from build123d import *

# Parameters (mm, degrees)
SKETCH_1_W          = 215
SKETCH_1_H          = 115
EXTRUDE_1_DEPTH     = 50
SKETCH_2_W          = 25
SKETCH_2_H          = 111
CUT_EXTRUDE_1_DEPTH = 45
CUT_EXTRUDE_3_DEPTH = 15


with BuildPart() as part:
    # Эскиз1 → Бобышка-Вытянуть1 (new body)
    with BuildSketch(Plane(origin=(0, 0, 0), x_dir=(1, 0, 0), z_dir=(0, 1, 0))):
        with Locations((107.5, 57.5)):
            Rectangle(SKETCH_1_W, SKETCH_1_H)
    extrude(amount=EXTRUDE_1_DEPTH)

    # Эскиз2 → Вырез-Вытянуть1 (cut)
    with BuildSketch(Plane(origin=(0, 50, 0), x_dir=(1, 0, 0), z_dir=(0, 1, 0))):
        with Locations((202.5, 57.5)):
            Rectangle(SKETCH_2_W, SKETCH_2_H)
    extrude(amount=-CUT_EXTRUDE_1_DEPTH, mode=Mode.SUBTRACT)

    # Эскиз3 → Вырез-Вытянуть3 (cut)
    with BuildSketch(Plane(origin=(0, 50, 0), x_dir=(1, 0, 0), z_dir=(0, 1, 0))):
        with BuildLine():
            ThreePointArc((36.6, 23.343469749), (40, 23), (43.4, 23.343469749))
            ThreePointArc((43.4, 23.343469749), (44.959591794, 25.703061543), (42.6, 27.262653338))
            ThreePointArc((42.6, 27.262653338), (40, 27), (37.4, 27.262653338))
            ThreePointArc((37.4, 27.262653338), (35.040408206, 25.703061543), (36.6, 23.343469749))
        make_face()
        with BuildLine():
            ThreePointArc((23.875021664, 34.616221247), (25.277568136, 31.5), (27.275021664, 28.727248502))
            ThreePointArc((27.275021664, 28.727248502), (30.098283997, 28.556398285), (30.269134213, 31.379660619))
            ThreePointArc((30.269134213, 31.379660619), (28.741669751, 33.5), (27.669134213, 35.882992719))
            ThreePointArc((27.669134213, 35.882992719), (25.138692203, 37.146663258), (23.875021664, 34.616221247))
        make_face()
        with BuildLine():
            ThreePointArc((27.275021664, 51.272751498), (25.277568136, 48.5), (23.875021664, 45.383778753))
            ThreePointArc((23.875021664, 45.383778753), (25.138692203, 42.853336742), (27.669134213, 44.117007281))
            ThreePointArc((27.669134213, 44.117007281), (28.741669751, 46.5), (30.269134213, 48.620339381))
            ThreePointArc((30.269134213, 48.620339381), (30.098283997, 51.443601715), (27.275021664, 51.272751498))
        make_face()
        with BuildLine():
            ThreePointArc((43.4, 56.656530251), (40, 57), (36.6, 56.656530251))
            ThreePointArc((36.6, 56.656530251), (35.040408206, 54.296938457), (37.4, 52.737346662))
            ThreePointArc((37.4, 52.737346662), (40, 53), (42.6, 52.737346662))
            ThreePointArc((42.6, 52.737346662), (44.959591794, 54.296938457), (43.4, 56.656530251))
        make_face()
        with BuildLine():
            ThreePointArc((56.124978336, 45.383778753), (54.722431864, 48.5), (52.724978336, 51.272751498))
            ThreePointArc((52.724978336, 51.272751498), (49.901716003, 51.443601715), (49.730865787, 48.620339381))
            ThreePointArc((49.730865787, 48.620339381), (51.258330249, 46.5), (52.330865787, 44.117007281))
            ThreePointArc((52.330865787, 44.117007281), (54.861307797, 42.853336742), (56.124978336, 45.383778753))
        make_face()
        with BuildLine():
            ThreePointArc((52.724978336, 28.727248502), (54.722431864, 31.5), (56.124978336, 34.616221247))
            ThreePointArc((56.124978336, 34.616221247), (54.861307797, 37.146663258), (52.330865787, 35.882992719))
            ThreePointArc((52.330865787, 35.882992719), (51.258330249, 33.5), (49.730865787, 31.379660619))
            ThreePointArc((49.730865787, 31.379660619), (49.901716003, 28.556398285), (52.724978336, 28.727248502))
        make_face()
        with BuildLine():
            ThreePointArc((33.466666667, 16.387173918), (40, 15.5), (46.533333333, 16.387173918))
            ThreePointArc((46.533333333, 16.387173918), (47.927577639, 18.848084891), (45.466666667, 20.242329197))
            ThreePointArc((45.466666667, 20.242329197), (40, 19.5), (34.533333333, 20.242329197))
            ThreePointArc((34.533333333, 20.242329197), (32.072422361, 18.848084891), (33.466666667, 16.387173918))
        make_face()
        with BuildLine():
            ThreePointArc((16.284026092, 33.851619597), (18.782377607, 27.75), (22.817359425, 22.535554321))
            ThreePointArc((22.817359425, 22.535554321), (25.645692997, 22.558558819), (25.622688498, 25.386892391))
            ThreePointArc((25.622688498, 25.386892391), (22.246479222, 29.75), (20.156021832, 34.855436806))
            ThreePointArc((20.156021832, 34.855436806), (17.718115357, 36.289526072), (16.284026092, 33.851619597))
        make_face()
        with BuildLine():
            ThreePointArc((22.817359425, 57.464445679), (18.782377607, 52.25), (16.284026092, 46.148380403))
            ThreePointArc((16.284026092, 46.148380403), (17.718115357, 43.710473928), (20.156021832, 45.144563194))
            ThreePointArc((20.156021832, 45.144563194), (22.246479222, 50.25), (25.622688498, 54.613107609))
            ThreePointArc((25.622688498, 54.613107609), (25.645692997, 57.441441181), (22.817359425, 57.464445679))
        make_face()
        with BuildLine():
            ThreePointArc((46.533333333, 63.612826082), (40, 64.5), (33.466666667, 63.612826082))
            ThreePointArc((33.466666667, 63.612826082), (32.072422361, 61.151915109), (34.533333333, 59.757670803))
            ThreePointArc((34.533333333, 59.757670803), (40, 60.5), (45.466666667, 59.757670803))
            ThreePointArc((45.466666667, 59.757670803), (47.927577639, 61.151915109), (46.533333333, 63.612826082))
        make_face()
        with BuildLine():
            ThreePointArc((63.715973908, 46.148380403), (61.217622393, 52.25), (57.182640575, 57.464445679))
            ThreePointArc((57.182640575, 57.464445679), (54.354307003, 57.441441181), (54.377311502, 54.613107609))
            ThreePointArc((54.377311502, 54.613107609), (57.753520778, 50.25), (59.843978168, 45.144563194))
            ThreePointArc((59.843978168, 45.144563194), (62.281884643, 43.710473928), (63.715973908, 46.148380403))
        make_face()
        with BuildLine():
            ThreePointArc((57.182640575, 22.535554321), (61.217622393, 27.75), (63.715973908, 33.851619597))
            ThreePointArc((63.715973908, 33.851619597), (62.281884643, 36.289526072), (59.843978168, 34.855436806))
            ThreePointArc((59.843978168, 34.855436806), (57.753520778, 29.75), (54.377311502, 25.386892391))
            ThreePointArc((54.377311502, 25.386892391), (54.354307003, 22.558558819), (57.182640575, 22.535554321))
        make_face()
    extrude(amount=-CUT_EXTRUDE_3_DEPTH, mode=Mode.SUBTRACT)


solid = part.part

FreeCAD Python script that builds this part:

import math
import FreeCAD as App
import Part
import Sketcher

V = App.Vector

doc = App.newDocument("Part")
body = doc.addObject("PartDesign::Body", "Body")

sketch1 = body.newObject("Sketcher::SketchObject", "Sketch")
sketch1.AttachmentSupport = (doc.getObject("XZ_Plane"), [""])
sketch1.MapMode = "FlatFace"
sketch1.addGeometry([
    Part.LineSegment(V(0, -115, 0), V(0, 0, 0)),
    Part.LineSegment(V(0, 0, 0), V(215, 0, 0)),
    Part.LineSegment(V(215, 0, 0), V(215, -115, 0)),
    Part.LineSegment(V(215, -115, 0), V(0, -115, 0)),
], False)
sketch1.addConstraint([
    Sketcher.Constraint("Coincident", 0, 2, 1, 1),
    Sketcher.Constraint("Coincident", 1, 2, 2, 1),
    Sketcher.Constraint("Coincident", 2, 2, 3, 1),
    Sketcher.Constraint("Coincident", 3, 2, 0, 1),
    Sketcher.Constraint("Vertical", 0),
    Sketcher.Constraint("Horizontal", 1),
    Sketcher.Constraint("Vertical", 2),
    Sketcher.Constraint("Horizontal", 3),
    Sketcher.Constraint("Coincident", 0, 2, -1, 1),
    Sketcher.Constraint("DistanceX", 1, 1, 1, 2, 215.0),
    Sketcher.Constraint("DistanceY", 0, 1, 0, 2, 115.0),
])
pad1 = body.newObject("PartDesign::Pad", "Pad")
pad1.Profile = sketch1
pad1.Length = 50
pad1.Reversed = True

sketch2 = body.newObject("Sketcher::SketchObject", "Sketch001")
sketch2.AttachmentSupport = (doc.getObject("XZ_Plane"), [""])
sketch2.MapMode = "FlatFace"
sketch2.AttachmentOffset = App.Placement(V(0, 0, -50), App.Rotation())
sketch2.addGeometry([
    Part.LineSegment(V(190, -113, 0), V(190, -2, 0)),
    Part.LineSegment(V(190, -2, 0), V(215, -2, 0)),
    Part.LineSegment(V(215, -2, 0), V(215, -113, 0)),
    Part.LineSegment(V(215, -113, 0), V(190, -113, 0)),
], False)
sketch2.addConstraint([
    Sketcher.Constraint("Coincident", 0, 2, 1, 1),
    Sketcher.Constraint("Coincident", 1, 2, 2, 1),
    Sketcher.Constraint("Coincident", 2, 2, 3, 1),
    Sketcher.Constraint("Coincident", 3, 2, 0, 1),
    Sketcher.Constraint("Vertical", 0),
    Sketcher.Constraint("Horizontal", 1),
    Sketcher.Constraint("Vertical", 2),
    Sketcher.Constraint("Horizontal", 3),
    Sketcher.Constraint("DistanceX", 1, 1, 1, 2, 25.0),
    Sketcher.Constraint("DistanceY", 0, 1, 0, 2, 111.0),
    Sketcher.Constraint("DistanceX", -1, 1, 0, 2, 190.0),
    Sketcher.Constraint("DistanceY", 0, 2, -1, 1, 2.0),
])
pocket1 = body.newObject("PartDesign::Pocket", "Pocket")
pocket1.Profile = sketch2
pocket1.Length = 45
pocket1.Reversed = True

sketch3 = body.newObject("Sketcher::SketchObject", "Sketch002")
sketch3.AttachmentSupport = (doc.getObject("XZ_Plane"), [""])
sketch3.MapMode = "FlatFace"
sketch3.AttachmentOffset = App.Placement(V(0, 0, -50), App.Rotation())
sketch3.addGeometry([
    Part.ArcOfCircle(Part.Circle(V(40, -40, 0), V(0, 0, 1), 17), math.radians(78), math.radians(102)),
    Part.ArcOfCircle(Part.Circle(V(43, -25.3, 0), V(0, 0, 1), 2), math.radians(-102), math.radians(78)),
    Part.ArcOfCircle(Part.Circle(V(40, -40, 0), V(0, 0, 1), 13), math.radians(78), math.radians(102)),
    Part.ArcOfCircle(Part.Circle(V(37, -25.3, 0), V(0, 0, 1), 2), math.radians(102), math.radians(282)),
    Part.ArcOfCircle(Part.Circle(V(40, -40, 0), V(0, 0, 1), 17), math.radians(138), math.radians(162)),
    Part.ArcOfCircle(Part.Circle(V(28.8, -30.1, 0), V(0, 0, 1), 2), math.radians(-42), math.radians(138)),
    Part.ArcOfCircle(Part.Circle(V(40, -40, 0), V(0, 0, 1), 13), math.radians(138), math.radians(162)),
    Part.ArcOfCircle(Part.Circle(V(25.8, -35.2, 0), V(0, 0, 1), 2), math.radians(162), math.radians(342)),
    Part.ArcOfCircle(Part.Circle(V(40, -40, 0), V(0, 0, 1), 17), math.radians(-162), math.radians(-138)),
    Part.ArcOfCircle(Part.Circle(V(25.8, -44.8, 0), V(0, 0, 1), 2), math.radians(18), math.radians(198)),
    Part.ArcOfCircle(Part.Circle(V(40, -40, 0), V(0, 0, 1), 13), math.radians(-162), math.radians(-138)),
    Part.ArcOfCircle(Part.Circle(V(28.8, -49.9, 0), V(0, 0, 1), 2), math.radians(-138), math.radians(42)),
    Part.ArcOfCircle(Part.Circle(V(40, -40, 0), V(0, 0, 1), 17), math.radians(-102), math.radians(-78)),
    Part.ArcOfCircle(Part.Circle(V(37, -54.7, 0), V(0, 0, 1), 2), math.radians(78), math.radians(258)),
    Part.ArcOfCircle(Part.Circle(V(40, -40, 0), V(0, 0, 1), 13), math.radians(-102), math.radians(-78)),
    Part.ArcOfCircle(Part.Circle(V(43, -54.7, 0), V(0, 0, 1), 2), math.radians(-78), math.radians(102)),
    Part.ArcOfCircle(Part.Circle(V(40, -40, 0), V(0, 0, 1), 17), math.radians(-42), math.radians(-18)),
    Part.ArcOfCircle(Part.Circle(V(51.2, -49.9, 0), V(0, 0, 1), 2), math.radians(138), math.radians(318)),
    Part.ArcOfCircle(Part.Circle(V(40, -40, 0), V(0, 0, 1), 13), math.radians(-42), math.radians(-18)),
    Part.ArcOfCircle(Part.Circle(V(54.2, -44.8, 0), V(0, 0, 1), 2), math.radians(-18), math.radians(162)),
    Part.ArcOfCircle(Part.Circle(V(40, -40, 0), V(0, 0, 1), 17), math.radians(18), math.radians(42)),
    Part.ArcOfCircle(Part.Circle(V(54.2, -35.2, 0), V(0, 0, 1), 2), math.radians(-162), math.radians(18)),
    Part.ArcOfCircle(Part.Circle(V(40, -40, 0), V(0, 0, 1), 13), math.radians(18), math.radians(42)),
    Part.ArcOfCircle(Part.Circle(V(51.2, -30.1, 0), V(0, 0, 1), 2), math.radians(42), math.radians(222)),
    Part.ArcOfCircle(Part.Circle(V(40, -40, 0), V(0, 0, 1), 24.5), math.radians(75), math.radians(105)),
    Part.ArcOfCircle(Part.Circle(V(46, -18.3, 0), V(0, 0, 1), 2), math.radians(-105), math.radians(75)),
    Part.ArcOfCircle(Part.Circle(V(40, -40, 0), V(0, 0, 1), 20.5), math.radians(75), math.radians(105)),
    Part.ArcOfCircle(Part.Circle(V(34, -18.3, 0), V(0, 0, 1), 2), math.radians(105), math.radians(285)),
    Part.ArcOfCircle(Part.Circle(V(40, -40, 0), V(0, 0, 1), 24.5), math.radians(135), math.radians(165)),
    Part.ArcOfCircle(Part.Circle(V(24.2, -24, 0), V(0, 0, 1), 2), math.radians(-45), math.radians(135)),
    Part.ArcOfCircle(Part.Circle(V(40, -40, 0), V(0, 0, 1), 20.5), math.radians(135), math.radians(165)),
    Part.ArcOfCircle(Part.Circle(V(18.2, -34.4, 0), V(0, 0, 1), 2), math.radians(165), math.radians(345)),
    Part.ArcOfCircle(Part.Circle(V(40, -40, 0), V(0, 0, 1), 24.5), math.radians(-165), math.radians(-135)),
    Part.ArcOfCircle(Part.Circle(V(18.2, -45.6, 0), V(0, 0, 1), 2), math.radians(15), math.radians(195)),
    Part.ArcOfCircle(Part.Circle(V(40, -40, 0), V(0, 0, 1), 20.5), math.radians(-165), math.radians(-135)),
    Part.ArcOfCircle(Part.Circle(V(24.2, -56, 0), V(0, 0, 1), 2), math.radians(-135), math.radians(45)),
    Part.ArcOfCircle(Part.Circle(V(40, -40, 0), V(0, 0, 1), 24.5), math.radians(-105), math.radians(-75)),
    Part.ArcOfCircle(Part.Circle(V(34, -61.7, 0), V(0, 0, 1), 2), math.radians(75), math.radians(255)),
    Part.ArcOfCircle(Part.Circle(V(40, -40, 0), V(0, 0, 1), 20.5), math.radians(-105), math.radians(-75)),
    Part.ArcOfCircle(Part.Circle(V(46, -61.7, 0), V(0, 0, 1), 2), math.radians(-75), math.radians(105)),
    Part.ArcOfCircle(Part.Circle(V(40, -40, 0), V(0, 0, 1), 24.5), math.radians(-45), math.radians(-15)),
    Part.ArcOfCircle(Part.Circle(V(55.8, -56, 0), V(0, 0, 1), 2), math.radians(135), math.radians(315)),
    Part.ArcOfCircle(Part.Circle(V(40, -40, 0), V(0, 0, 1), 20.5), math.radians(-45), math.radians(-15)),
    Part.ArcOfCircle(Part.Circle(V(61.8, -45.6, 0), V(0, 0, 1), 2), math.radians(-15), math.radians(165)),
    Part.ArcOfCircle(Part.Circle(V(40, -40, 0), V(0, 0, 1), 24.5), math.radians(15), math.radians(45)),
    Part.ArcOfCircle(Part.Circle(V(61.8, -34.4, 0), V(0, 0, 1), 2), math.radians(-165), math.radians(15)),
    Part.ArcOfCircle(Part.Circle(V(40, -40, 0), V(0, 0, 1), 20.5), math.radians(15), math.radians(45)),
    Part.ArcOfCircle(Part.Circle(V(55.8, -24, 0), V(0, 0, 1), 2), math.radians(45), math.radians(225)),
], False)
sketch3.addConstraint([
    Sketcher.Constraint("Tangent", 0, 1, 1, 2),
    Sketcher.Constraint("Tangent", 1, 1, 2, 1),
    Sketcher.Constraint("Tangent", 2, 2, 3, 2),
    Sketcher.Constraint("Tangent", 3, 1, 0, 2),
    Sketcher.Constraint("Tangent", 4, 1, 5, 2),
    Sketcher.Constraint("Tangent", 5, 1, 6, 1),
    Sketcher.Constraint("Tangent", 6, 2, 7, 2),
    Sketcher.Constraint("Tangent", 7, 1, 4, 2),
    Sketcher.Constraint("Tangent", 8, 1, 9, 2),
    Sketcher.Constraint("Tangent", 9, 1, 10, 1),
    Sketcher.Constraint("Tangent", 10, 2, 11, 2),
    Sketcher.Constraint("Tangent", 11, 1, 8, 2),
    Sketcher.Constraint("Tangent", 12, 1, 13, 2),
    Sketcher.Constraint("Tangent", 13, 1, 14, 1),
    Sketcher.Constraint("Tangent", 14, 2, 15, 2),
    Sketcher.Constraint("Tangent", 15, 1, 12, 2),
    Sketcher.Constraint("Tangent", 16, 1, 17, 2),
    Sketcher.Constraint("Tangent", 17, 1, 18, 1),
    Sketcher.Constraint("Tangent", 18, 2, 19, 2),
    Sketcher.Constraint("Tangent", 19, 1, 16, 2),
    Sketcher.Constraint("Tangent", 20, 1, 21, 2),
    Sketcher.Constraint("Tangent", 21, 1, 22, 1),
    Sketcher.Constraint("Tangent", 22, 2, 23, 2),
    Sketcher.Constraint("Tangent", 23, 1, 20, 2),
    Sketcher.Constraint("Tangent", 24, 1, 25, 2),
    Sketcher.Constraint("Tangent", 25, 1, 26, 1),
    Sketcher.Constraint("Tangent", 26, 2, 27, 2),
    Sketcher.Constraint("Tangent", 27, 1, 24, 2),
    Sketcher.Constraint("Tangent", 28, 1, 29, 2),
    Sketcher.Constraint("Tangent", 29, 1, 30, 1),
    Sketcher.Constraint("Tangent", 30, 2, 31, 2),
    Sketcher.Constraint("Tangent", 31, 1, 28, 2),
    Sketcher.Constraint("Tangent", 32, 1, 33, 2),
    Sketcher.Constraint("Tangent", 33, 1, 34, 1),
    Sketcher.Constraint("Tangent", 34, 2, 35, 2),
    Sketcher.Constraint("Tangent", 35, 1, 32, 2),
    Sketcher.Constraint("Tangent", 36, 1, 37, 2),
    Sketcher.Constraint("Tangent", 37, 1, 38, 1),
    Sketcher.Constraint("Tangent", 38, 2, 39, 2),
    Sketcher.Constraint("Tangent", 39, 1, 36, 2),
    Sketcher.Constraint("Tangent", 40, 1, 41, 2),
    Sketcher.Constraint("Tangent", 41, 1, 42, 1),
    Sketcher.Constraint("Tangent", 42, 2, 43, 2),
    Sketcher.Constraint("Tangent", 43, 1, 40, 2),
    Sketcher.Constraint("Tangent", 44, 1, 45, 2),
    Sketcher.Constraint("Tangent", 45, 1, 46, 1),
    Sketcher.Constraint("Tangent", 46, 2, 47, 2),
    Sketcher.Constraint("Tangent", 47, 1, 44, 2),
    Sketcher.Constraint("Coincident", 2, 3, 0, 3),
    Sketcher.Constraint("Coincident", 4, 3, 0, 3),
    Sketcher.Constraint("Coincident", 6, 3, 0, 3),
    Sketcher.Constraint("Coincident", 8, 3, 0, 3),
    Sketcher.Constraint("Coincident", 10, 3, 0, 3),
    Sketcher.Constraint("Coincident", 12, 3, 0, 3),
    Sketcher.Constraint("Coincident", 14, 3, 0, 3),
    Sketcher.Constraint("Coincident", 16, 3, 0, 3),
    Sketcher.Constraint("Coincident", 18, 3, 0, 3),
    Sketcher.Constraint("Coincident", 20, 3, 0, 3),
    Sketcher.Constraint("Coincident", 22, 3, 0, 3),
    Sketcher.Constraint("Coincident", 24, 3, 0, 3),
    Sketcher.Constraint("Coincident", 26, 3, 0, 3),
    Sketcher.Constraint("Coincident", 28, 3, 0, 3),
    Sketcher.Constraint("Coincident", 30, 3, 0, 3),
    Sketcher.Constraint("Coincident", 32, 3, 0, 3),
    Sketcher.Constraint("Coincident", 34, 3, 0, 3),
    Sketcher.Constraint("Coincident", 36, 3, 0, 3),
    Sketcher.Constraint("Coincident", 38, 3, 0, 3),
    Sketcher.Constraint("Coincident", 40, 3, 0, 3),
    Sketcher.Constraint("Coincident", 42, 3, 0, 3),
    Sketcher.Constraint("Coincident", 44, 3, 0, 3),
    Sketcher.Constraint("Coincident", 46, 3, 0, 3),
    Sketcher.Constraint("Equal", 0, 4),
    Sketcher.Constraint("Equal", 3, 5),
    Sketcher.Constraint("Equal", 4, 8),
    Sketcher.Constraint("Equal", 7, 9),
    Sketcher.Constraint("Equal", 8, 12),
    Sketcher.Constraint("Equal", 11, 13),
    Sketcher.Constraint("Equal", 12, 16),
    Sketcher.Constraint("Equal", 15, 17),
    Sketcher.Constraint("Equal", 16, 20),
    Sketcher.Constraint("Equal", 19, 21),
    Sketcher.Constraint("Equal", 23, 25),
    Sketcher.Constraint("Equal", 24, 28),
    Sketcher.Constraint("Equal", 27, 29),
    Sketcher.Constraint("Equal", 28, 32),
    Sketcher.Constraint("Equal", 31, 33),
    Sketcher.Constraint("Equal", 32, 36),
    Sketcher.Constraint("Equal", 35, 37),
    Sketcher.Constraint("Equal", 36, 40),
    Sketcher.Constraint("Equal", 39, 41),
    Sketcher.Constraint("Equal", 40, 44),
    Sketcher.Constraint("Equal", 43, 45),
    Sketcher.Constraint("Horizontal", 1, 3, 3, 3),
    Sketcher.Constraint("Horizontal", 13, 3, 15, 3),
    Sketcher.Constraint("Horizontal", 11, 3, 17, 3),
    Sketcher.Constraint("Horizontal", 9, 3, 19, 3),
    Sketcher.Constraint("Horizontal", 7, 3, 21, 3),
    Sketcher.Constraint("Horizontal", 5, 3, 23, 3),
    Sketcher.Constraint("Horizontal", 25, 3, 27, 3),
    Sketcher.Constraint("Horizontal", 37, 3, 39, 3),
    Sketcher.Constraint("Horizontal", 35, 3, 41, 3),
    Sketcher.Constraint("Horizontal", 33, 3, 43, 3),
    Sketcher.Constraint("Horizontal", 31, 3, 45, 3),
    Sketcher.Constraint("Horizontal", 29, 3, 47, 3),
    Sketcher.Constraint("Vertical", 7, 3, 9, 3),
    Sketcher.Constraint("Vertical", 5, 3, 11, 3),
    Sketcher.Constraint("Vertical", 3, 3, 13, 3),
    Sketcher.Constraint("Vertical", 31, 3, 33, 3),
    Sketcher.Constraint("Vertical", 29, 3, 35, 3),
    Sketcher.Constraint("Vertical", 27, 3, 37, 3),
    Sketcher.Constraint("Radius", 0, 17.0),
    Sketcher.Constraint("Radius", 1, 2.0),
    Sketcher.Constraint("Radius", 24, 24.5),
    Sketcher.Constraint("DistanceX", -1, 1, 0, 3, 40.0),
    Sketcher.Constraint("DistanceY", 0, 3, -1, 1, 40.0),
    Sketcher.Constraint("DistanceX", -1, 1, 1, 3, 43.0),
    Sketcher.Constraint("DistanceX", -1, 1, 25, 3, 46.0),
    Sketcher.Constraint("DistanceY", 31, 3, -1, 1, 34.353528),
    Sketcher.Constraint("DistanceX", -1, 1, 4, 1, 27.275022),
    Sketcher.Constraint("DistanceX", -1, 1, 7, 1, 23.875022),
    Sketcher.Constraint("DistanceX", -1, 1, 28, 1, 22.817359),
])
pocket2 = body.newObject("PartDesign::Pocket", "Pocket001")
pocket2.Profile = sketch3
pocket2.Length = 15
pocket2.Reversed = True

doc.recompute()
